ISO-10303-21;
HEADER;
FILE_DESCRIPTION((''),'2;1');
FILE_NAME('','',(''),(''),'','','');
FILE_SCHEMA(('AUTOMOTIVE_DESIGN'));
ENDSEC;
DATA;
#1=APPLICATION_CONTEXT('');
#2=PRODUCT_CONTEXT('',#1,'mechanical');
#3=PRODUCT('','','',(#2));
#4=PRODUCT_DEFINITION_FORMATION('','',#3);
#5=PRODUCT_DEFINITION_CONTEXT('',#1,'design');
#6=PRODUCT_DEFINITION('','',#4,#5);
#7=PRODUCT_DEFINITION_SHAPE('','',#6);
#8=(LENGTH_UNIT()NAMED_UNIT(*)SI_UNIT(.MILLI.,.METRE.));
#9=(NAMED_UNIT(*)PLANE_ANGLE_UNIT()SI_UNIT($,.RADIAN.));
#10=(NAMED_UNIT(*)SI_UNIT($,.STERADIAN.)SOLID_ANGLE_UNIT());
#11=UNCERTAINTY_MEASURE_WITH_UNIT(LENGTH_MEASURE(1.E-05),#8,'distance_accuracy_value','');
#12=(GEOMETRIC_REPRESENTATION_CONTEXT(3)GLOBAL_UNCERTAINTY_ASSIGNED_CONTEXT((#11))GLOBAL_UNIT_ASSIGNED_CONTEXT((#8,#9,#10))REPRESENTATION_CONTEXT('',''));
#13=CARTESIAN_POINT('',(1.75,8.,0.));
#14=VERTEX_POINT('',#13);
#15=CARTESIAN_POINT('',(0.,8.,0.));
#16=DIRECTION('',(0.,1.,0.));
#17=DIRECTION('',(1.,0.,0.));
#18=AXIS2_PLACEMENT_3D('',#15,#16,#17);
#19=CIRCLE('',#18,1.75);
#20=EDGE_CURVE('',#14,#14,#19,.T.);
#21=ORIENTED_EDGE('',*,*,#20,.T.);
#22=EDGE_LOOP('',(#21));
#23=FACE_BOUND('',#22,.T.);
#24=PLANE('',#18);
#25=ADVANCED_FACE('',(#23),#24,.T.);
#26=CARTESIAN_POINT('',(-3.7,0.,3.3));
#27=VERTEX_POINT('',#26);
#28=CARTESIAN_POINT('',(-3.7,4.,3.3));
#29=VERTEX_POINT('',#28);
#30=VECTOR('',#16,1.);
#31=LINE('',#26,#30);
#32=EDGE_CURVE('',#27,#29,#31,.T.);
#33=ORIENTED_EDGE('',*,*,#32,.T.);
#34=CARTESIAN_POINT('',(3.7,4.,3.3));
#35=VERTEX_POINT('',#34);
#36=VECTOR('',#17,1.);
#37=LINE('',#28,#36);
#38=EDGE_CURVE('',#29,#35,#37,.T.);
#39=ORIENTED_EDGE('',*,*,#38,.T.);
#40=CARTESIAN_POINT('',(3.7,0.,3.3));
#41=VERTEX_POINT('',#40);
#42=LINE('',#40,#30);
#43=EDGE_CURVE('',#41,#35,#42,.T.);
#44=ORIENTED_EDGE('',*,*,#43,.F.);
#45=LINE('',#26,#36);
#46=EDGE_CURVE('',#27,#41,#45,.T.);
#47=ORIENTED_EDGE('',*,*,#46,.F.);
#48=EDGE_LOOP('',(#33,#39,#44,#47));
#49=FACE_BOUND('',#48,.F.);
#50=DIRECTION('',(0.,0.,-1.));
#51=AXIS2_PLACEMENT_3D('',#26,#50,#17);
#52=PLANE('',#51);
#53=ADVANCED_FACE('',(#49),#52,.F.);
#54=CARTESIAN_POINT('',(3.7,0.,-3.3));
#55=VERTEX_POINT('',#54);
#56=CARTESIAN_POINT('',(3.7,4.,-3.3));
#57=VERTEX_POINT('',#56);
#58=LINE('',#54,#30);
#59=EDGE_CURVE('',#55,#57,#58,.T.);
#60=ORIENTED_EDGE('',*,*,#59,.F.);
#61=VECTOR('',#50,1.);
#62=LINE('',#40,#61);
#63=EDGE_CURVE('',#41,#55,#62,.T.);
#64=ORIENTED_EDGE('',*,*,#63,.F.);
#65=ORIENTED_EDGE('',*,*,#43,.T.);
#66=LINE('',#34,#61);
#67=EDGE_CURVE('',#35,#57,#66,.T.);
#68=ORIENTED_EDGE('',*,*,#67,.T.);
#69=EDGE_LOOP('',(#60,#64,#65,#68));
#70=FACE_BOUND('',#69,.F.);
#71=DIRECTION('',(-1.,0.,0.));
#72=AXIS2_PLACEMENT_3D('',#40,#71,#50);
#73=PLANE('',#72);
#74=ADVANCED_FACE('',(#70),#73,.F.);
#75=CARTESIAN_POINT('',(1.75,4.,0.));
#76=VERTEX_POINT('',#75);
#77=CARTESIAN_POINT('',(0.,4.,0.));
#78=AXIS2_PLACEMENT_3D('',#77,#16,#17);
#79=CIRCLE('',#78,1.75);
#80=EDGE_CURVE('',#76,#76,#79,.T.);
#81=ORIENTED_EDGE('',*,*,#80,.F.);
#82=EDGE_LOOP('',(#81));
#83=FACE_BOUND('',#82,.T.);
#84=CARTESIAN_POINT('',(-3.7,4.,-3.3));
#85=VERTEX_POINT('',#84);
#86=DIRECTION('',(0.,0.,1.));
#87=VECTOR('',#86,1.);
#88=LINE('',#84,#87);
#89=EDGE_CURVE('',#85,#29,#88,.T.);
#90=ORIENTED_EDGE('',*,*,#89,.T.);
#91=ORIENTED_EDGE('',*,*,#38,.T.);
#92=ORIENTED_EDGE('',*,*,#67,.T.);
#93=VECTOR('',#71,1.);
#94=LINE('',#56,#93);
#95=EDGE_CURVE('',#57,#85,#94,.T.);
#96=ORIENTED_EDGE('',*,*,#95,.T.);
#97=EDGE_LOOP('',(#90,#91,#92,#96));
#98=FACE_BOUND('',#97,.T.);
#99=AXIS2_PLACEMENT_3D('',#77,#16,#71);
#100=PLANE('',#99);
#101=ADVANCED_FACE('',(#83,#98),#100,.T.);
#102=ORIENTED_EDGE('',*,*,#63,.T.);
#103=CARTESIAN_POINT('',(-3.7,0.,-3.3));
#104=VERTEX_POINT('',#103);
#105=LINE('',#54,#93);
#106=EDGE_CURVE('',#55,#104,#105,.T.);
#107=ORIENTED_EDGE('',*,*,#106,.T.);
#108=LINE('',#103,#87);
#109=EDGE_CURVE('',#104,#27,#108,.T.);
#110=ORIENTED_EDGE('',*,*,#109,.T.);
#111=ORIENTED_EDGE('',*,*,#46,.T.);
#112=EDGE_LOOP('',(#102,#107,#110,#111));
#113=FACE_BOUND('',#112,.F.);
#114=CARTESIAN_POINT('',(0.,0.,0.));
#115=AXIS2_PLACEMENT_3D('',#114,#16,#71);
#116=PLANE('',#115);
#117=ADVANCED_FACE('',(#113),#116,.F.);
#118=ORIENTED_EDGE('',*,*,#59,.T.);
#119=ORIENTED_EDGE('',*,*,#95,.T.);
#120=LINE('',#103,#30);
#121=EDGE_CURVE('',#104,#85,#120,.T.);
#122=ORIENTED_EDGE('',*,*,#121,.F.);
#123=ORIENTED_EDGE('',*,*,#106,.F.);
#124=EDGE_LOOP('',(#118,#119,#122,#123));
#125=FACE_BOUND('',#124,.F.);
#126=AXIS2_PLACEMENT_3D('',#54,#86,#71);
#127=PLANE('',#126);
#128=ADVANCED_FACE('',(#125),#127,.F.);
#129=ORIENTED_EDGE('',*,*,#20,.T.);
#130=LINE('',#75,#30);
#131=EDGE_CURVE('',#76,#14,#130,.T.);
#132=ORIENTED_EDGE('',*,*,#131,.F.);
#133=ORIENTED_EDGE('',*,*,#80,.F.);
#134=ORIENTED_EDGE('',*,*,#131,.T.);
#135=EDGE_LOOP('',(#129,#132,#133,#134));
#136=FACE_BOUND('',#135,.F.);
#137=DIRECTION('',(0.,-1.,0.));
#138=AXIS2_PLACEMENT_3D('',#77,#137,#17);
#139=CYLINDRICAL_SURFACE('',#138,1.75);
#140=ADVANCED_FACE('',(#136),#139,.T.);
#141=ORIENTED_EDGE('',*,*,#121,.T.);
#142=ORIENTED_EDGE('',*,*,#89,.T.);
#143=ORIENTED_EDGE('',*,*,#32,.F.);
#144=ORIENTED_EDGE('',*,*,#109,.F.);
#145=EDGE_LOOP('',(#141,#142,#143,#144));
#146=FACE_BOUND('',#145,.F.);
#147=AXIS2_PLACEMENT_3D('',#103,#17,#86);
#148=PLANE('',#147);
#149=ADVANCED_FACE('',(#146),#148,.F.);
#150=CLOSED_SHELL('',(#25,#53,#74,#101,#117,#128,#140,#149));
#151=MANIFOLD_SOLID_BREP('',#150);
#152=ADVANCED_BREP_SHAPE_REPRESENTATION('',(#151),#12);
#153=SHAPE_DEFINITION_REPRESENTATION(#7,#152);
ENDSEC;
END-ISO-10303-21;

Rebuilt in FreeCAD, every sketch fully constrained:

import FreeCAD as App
import Part
import Sketcher
Q = App.Units.Quantity

doc = App.newDocument("Part")
body = doc.addObject("PartDesign::Body", "Body")

sketch1 = doc.addObject("Sketcher::SketchObject", "Sketch")
body.addObject(sketch1)
sketch1.AttachmentSupport = (doc.XZ_Plane, [""])
sketch1.MapMode = "FlatFace"
sketch1.addGeometry([
    Part.LineSegment(App.Vector(-4, -3, 0), App.Vector(-4, 3, 0)),
    Part.LineSegment(App.Vector(-4, 3, 0), App.Vector(4, 3, 0)),
    Part.LineSegment(App.Vector(4, 3, 0), App.Vector(4, -3, 0)),
    Part.LineSegment(App.Vector(4, -3, 0), App.Vector(-4, -3, 0)),
], False)
sketch1.addConstraint([
    Sketcher.Constraint("Coincident", 0, 2, 1, 1),
    Sketcher.Constraint("Coincident", 1, 2, 2, 1),
    Sketcher.Constraint("Coincident", 2, 2, 3, 1),
    Sketcher.Constraint("Coincident", 3, 2, 0, 1),
    Sketcher.Constraint("Vertical", 0),
    Sketcher.Constraint("Horizontal", 1),
    Sketcher.Constraint("Vertical", 2),
    Sketcher.Constraint("Horizontal", 3),
    Sketcher.Constraint("Symmetric", 0, 2, 2, 2, -1, 1),
    Sketcher.Constraint("DistanceX", 1, 1, 1, 2, Q("7.4 mm")),
    Sketcher.Constraint("DistanceY", 0, 1, 0, 2, Q("6.6 mm")),
])
pad1 = doc.addObject("PartDesign::Pad", "Pad")
body.addObject(pad1)
pad1.Profile = sketch1
pad1.Length = 4
pad1.Reversed = True

sketch2 = doc.addObject("Sketcher::SketchObject", "Sketch001")
body.addObject(sketch2)
sketch2.AttachmentSupport = (doc.XZ_Plane, [""])
sketch2.MapMode = "FlatFace"
sketch2.AttachmentOffset = App.Placement(App.Vector(0, 0, -4), App.Rotation())
sketch2.addGeometry(Part.Circle(App.Vector(0, 0, 0), App.Vector(0, 0, 1), 1.8), False)
sketch2.addConstraint([
    Sketcher.Constraint("Coincident", 0, 3, -1, 1),
    Sketcher.Constraint("Diameter", 0, Q("3.5 mm")),
])
pad2 = doc.addObject("PartDesign::Pad", "Pad001")
body.addObject(pad2)
pad2.Profile = sketch2
pad2.Length = 4
pad2.Reversed = True

doc.recompute()
